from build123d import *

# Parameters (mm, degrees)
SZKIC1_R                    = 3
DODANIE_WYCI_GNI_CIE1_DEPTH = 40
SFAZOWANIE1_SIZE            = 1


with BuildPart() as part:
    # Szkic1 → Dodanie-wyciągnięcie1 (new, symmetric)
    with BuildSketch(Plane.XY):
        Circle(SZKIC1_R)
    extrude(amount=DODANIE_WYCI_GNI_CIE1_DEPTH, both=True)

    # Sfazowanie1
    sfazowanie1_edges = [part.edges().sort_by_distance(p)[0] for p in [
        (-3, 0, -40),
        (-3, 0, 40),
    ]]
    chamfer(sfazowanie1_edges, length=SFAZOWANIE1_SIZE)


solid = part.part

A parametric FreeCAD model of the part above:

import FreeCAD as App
import Part
import Sketcher
from FreeCAD import Vector
Q = App.Units.Quantity


def edges_at(feature, points):
    """Names of the edges that pass closest to the given points."""
    edges = feature.Shape.Edges
    near = lambda p: min(range(len(edges)), key=lambda i: edges[i].distToShape(Part.Vertex(*p))[0])
    return sorted({f"Edge{near(p) + 1}" for p in points})

doc = App.newDocument("Part")
body = doc.addObject("PartDesign::Body", "Body")

# Sketch on XY plane
sketch1 = body.newObject("Sketcher::SketchObject", "Sketch")
sketch1.AttachmentSupport = (doc.getObject("XY_Plane"), [""])
sketch1.MapMode = "FlatFace"
sketch1.addGeometry(Part.Circle(Vector(0, 0, 0), Vector(0, 0, 1), 3), False)
sketch1.addConstraint(Sketcher.Constraint("Coincident", 0, 3, -1, 1))
sketch1.addConstraint(Sketcher.Constraint("Diameter", 0, Q("6 mm")))
pad1 = body.newObject("PartDesign::Pad", "Pad")
pad1.Profile = sketch1
pad1.Length = 80
pad1.Midplane = True
doc.recompute()

chamfer = body.newObject("PartDesign::Chamfer", "Chamfer")
chamfer.Base = (pad1, edges_at(pad1, [(-3, 0, -40), (-3, 0, 40)]))
chamfer.Size = 1

doc.recompute()
